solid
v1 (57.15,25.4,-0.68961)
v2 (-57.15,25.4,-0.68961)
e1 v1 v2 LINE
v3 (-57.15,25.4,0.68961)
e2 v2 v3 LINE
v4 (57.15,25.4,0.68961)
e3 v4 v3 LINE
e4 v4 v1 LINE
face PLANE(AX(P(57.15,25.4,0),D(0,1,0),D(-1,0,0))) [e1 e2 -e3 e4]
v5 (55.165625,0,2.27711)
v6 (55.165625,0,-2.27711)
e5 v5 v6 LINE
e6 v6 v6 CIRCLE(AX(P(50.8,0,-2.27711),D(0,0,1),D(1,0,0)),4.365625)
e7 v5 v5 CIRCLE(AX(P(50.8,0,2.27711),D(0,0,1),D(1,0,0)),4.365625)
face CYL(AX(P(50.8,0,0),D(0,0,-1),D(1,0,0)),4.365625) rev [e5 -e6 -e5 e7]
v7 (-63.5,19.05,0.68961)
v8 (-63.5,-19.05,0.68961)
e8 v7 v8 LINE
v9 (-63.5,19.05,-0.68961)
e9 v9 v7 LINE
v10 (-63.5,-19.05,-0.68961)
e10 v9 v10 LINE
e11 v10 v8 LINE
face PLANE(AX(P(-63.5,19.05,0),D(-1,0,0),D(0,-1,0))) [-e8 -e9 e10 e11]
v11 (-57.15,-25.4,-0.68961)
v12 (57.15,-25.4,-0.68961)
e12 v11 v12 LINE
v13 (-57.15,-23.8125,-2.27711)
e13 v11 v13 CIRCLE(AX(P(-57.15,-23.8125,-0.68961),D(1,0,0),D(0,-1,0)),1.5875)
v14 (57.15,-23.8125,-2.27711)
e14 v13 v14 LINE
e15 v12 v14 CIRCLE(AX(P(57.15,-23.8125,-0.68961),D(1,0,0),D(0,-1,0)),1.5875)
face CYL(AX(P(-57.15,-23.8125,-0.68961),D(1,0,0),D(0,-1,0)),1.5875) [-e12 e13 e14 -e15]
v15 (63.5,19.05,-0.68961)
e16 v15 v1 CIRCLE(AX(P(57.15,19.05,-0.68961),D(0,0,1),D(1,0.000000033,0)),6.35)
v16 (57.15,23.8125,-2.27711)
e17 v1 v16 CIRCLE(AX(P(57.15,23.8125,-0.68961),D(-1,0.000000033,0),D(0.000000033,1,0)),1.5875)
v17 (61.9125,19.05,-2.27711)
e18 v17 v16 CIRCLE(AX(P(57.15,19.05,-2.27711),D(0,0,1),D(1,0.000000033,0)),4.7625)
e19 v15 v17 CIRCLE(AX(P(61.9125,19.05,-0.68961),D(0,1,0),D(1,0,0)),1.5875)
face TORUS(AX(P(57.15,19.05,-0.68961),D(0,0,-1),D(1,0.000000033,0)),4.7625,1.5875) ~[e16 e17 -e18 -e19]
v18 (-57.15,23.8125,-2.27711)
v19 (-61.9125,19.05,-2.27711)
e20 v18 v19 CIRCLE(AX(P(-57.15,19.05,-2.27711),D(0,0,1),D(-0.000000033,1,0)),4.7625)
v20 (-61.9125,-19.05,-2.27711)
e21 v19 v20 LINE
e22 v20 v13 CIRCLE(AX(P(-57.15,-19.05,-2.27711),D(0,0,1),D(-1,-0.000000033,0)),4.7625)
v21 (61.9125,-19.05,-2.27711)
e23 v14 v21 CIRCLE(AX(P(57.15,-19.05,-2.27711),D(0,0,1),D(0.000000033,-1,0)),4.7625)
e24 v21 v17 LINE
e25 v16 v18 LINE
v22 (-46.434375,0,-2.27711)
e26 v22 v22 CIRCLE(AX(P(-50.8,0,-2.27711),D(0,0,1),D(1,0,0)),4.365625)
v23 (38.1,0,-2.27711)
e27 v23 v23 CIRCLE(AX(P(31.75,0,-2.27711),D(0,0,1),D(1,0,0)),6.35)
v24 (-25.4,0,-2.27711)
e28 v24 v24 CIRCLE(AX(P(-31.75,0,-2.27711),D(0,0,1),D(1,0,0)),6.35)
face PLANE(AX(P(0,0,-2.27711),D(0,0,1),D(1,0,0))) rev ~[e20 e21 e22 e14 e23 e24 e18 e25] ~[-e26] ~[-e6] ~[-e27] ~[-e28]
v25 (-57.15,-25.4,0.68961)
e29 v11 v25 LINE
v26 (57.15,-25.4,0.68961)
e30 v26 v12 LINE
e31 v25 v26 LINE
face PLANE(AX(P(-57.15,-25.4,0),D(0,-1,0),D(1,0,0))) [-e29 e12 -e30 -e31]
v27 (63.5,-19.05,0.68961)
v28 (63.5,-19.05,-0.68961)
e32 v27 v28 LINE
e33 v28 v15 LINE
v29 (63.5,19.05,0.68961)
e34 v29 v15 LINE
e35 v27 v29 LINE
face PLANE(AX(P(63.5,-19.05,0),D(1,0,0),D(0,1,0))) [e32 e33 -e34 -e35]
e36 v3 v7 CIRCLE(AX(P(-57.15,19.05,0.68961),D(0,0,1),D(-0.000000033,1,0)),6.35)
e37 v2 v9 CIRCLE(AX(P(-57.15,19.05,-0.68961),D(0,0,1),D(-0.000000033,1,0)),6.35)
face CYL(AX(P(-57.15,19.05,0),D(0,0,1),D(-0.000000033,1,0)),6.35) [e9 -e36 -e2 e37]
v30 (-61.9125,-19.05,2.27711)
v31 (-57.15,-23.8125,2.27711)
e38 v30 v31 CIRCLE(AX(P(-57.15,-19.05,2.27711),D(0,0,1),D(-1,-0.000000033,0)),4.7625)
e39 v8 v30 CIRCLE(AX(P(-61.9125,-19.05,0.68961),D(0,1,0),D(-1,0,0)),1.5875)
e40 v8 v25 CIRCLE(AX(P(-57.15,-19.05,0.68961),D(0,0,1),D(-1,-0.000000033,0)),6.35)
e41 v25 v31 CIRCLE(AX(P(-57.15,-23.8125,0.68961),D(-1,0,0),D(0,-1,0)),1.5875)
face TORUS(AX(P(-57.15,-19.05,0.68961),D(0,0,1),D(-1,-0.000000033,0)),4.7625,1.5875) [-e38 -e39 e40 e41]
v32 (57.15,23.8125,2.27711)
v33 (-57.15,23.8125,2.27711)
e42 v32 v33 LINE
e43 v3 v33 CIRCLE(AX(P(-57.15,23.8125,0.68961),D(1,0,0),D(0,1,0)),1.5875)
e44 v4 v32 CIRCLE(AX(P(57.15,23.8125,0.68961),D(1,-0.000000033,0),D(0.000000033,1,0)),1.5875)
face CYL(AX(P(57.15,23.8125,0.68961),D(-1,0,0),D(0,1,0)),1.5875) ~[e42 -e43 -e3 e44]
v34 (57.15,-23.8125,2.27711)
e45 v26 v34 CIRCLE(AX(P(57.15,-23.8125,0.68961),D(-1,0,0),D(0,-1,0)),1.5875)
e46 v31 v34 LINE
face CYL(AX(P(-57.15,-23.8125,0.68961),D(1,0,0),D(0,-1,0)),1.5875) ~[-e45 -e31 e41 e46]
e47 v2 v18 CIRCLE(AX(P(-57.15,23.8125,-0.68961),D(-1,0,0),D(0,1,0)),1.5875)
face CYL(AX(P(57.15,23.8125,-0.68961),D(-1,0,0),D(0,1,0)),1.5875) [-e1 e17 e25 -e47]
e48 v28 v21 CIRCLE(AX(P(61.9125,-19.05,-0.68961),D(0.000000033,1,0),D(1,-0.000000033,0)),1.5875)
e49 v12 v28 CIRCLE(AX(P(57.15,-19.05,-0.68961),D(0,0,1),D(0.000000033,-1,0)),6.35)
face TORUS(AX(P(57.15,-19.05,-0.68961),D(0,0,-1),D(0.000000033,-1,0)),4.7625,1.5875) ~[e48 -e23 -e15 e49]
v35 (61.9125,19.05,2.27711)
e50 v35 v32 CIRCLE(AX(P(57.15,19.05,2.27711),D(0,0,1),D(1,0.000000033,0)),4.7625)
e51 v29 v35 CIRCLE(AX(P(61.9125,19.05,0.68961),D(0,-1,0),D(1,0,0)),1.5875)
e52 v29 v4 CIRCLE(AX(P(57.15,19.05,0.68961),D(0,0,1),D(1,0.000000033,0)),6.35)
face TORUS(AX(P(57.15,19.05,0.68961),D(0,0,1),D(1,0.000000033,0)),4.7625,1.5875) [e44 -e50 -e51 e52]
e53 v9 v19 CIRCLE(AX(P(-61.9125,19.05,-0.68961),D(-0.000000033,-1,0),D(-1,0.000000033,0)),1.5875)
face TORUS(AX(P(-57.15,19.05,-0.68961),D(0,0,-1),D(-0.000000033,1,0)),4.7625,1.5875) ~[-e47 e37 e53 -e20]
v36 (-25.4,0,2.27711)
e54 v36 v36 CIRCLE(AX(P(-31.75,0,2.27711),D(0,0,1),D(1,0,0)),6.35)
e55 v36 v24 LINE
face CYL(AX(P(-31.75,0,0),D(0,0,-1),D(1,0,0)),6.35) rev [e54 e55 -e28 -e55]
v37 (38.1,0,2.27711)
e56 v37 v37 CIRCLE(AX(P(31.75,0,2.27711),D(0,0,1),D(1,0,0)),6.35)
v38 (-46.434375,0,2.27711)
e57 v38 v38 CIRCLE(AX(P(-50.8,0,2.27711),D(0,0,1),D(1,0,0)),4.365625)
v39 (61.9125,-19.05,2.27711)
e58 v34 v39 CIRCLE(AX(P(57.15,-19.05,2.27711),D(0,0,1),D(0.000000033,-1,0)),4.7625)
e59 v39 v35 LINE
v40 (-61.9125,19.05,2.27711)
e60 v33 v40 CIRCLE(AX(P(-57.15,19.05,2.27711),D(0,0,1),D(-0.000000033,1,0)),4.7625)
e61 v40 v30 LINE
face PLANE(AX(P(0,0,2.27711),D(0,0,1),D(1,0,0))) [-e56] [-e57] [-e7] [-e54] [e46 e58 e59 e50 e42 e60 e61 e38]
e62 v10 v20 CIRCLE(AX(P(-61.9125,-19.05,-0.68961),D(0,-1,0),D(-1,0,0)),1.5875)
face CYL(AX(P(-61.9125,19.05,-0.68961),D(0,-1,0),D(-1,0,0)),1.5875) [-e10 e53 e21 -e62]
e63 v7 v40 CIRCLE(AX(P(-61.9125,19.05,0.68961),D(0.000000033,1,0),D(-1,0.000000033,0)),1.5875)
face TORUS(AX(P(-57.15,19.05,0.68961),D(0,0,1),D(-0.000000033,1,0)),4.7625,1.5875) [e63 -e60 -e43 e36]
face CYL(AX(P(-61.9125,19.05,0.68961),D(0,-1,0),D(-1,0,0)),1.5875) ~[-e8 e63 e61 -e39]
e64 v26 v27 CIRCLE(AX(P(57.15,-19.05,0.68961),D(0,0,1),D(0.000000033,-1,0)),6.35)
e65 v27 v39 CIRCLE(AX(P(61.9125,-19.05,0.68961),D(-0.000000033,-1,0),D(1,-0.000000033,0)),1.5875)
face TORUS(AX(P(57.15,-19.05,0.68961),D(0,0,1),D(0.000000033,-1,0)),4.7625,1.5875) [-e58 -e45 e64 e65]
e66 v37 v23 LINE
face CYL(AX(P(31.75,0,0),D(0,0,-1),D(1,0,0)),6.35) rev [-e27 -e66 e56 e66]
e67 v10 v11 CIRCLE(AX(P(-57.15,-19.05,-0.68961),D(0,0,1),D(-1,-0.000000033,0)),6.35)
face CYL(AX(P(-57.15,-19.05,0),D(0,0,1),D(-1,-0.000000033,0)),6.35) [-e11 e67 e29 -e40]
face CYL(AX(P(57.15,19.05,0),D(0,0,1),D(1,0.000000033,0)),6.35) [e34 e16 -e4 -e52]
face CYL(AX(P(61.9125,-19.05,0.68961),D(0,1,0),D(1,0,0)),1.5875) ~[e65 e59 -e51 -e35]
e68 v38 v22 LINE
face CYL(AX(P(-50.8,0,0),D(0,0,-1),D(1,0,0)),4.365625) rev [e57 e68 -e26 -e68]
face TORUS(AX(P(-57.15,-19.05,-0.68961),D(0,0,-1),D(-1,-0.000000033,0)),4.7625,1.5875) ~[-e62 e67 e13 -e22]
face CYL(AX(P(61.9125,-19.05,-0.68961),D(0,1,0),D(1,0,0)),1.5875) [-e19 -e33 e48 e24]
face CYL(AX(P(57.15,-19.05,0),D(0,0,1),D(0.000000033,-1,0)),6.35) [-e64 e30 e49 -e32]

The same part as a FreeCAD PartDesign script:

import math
import FreeCAD as App
import Part
import Sketcher
from FreeCAD import Vector
Q = App.Units.Quantity


def edges_at(feature, points):
    """Names of the edges that pass closest to the given points."""
    edges = feature.Shape.Edges
    near = lambda p: min(range(len(edges)), key=lambda i: edges[i].distToShape(Part.Vertex(*p))[0])
    return sorted({f"Edge{near(p) + 1}" for p in points})

doc = App.newDocument("Part")
params = doc.addObject("Spreadsheet::Sheet", "Params")
for row, (alias, value) in enumerate([
    ("sketch1_diameter", "0.5 in"),
    ("sketch1_diameter2", "0.34375 in"),
    ("sketch1_width", "4.5 in"),
    ("sketch1_height", "1.5 in"),
    ("pad1_length", "0.1793 in"),
    ("fillet_radius", "0.0625 in"),
], start=1):
    params.set(f"A{row}", alias)
    params.set(f"B{row}", "=" + value)
    params.setAlias(f"B{row}", alias)

body = doc.addObject("PartDesign::Body", "Body")

# Sketch on XY plane
sketch1 = body.newObject("Sketcher::SketchObject", "Sketch")
sketch1.AttachmentSupport = (doc.getObject("XY_Plane"), [""])
sketch1.MapMode = "FlatFace"
sketch1.addGeometry([
    Part.LineSegment(Vector(57.15, 25.4, 0), Vector(-57.15, 25.4, 0)),  # 0
    Part.ArcOfCircle(Part.Circle(Vector(-57.15, 19.05, 0), Vector(0, 0, 1), 6.35), math.radians(90.000002), math.radians(179.999998)),  # 1
    Part.LineSegment(Vector(-63.5, 19.05, 0), Vector(-63.5, -19.05, 0)),  # 2
    Part.ArcOfCircle(Part.Circle(Vector(-57.15, -19.05, 0), Vector(0, 0, 1), 6.35), math.radians(-179.999998), math.radians(-90.000002)),  # 3
    Part.LineSegment(Vector(-57.15, -25.4, 0), Vector(57.15, -25.4, 0)),  # 4
    Part.ArcOfCircle(Part.Circle(Vector(57.15, -19.05, 0), Vector(0, 0, 1), 6.35), math.radians(-89.999998), math.radians(-0.000002)),  # 5
    Part.LineSegment(Vector(63.5, -19.05, 0), Vector(63.5, 19.05, 0)),  # 6
    Part.ArcOfCircle(Part.Circle(Vector(57.15, 19.05, 0), Vector(0, 0, 1), 6.35), math.radians(0.000002), math.radians(89.999998)),  # 7
    Part.Circle(Vector(-50.8, 0, 0), Vector(0, 0, 1), 4.365625),  # 8
    Part.Circle(Vector(-31.75, 0, 0), Vector(0, 0, 1), 6.35),  # 9
    Part.Circle(Vector(31.75, 0, 0), Vector(0, 0, 1), 6.35),  # 10
    Part.Circle(Vector(50.8, 0, 0), Vector(0, 0, 1), 4.365625),  # 11
], False)
sketch1.addConstraint([
    Sketcher.Constraint("Tangent", 0, 2, 1, 1),
    Sketcher.Constraint("Tangent", 1, 2, 2, 1),
    Sketcher.Constraint("Tangent", 2, 2, 3, 1),
    Sketcher.Constraint("Tangent", 3, 2, 4, 1),
    Sketcher.Constraint("Tangent", 4, 2, 5, 1),
    Sketcher.Constraint("Tangent", 5, 2, 6, 1),
    Sketcher.Constraint("Tangent", 6, 2, 7, 1),
    Sketcher.Constraint("Tangent", 7, 2, 0, 1),
    Sketcher.Constraint("Horizontal", 0),
    Sketcher.Constraint("Vertical", 2),
    Sketcher.Constraint("Horizontal", 4),
    Sketcher.Constraint("Vertical", 6),
    Sketcher.Constraint("Equal", 1, 3),
    Sketcher.Constraint("Equal", 3, 5),
    Sketcher.Constraint("Equal", 5, 7),
    Sketcher.Constraint("Equal", 7, 9),
    Sketcher.Constraint("Equal", 9, 10),
    Sketcher.Constraint("Equal", 8, 11),
    Sketcher.Constraint("Symmetric", 1, 3, 5, 3, -1, 1),
    Sketcher.Constraint("Symmetric", 9, 3, 10, 3, -1, 1),
    Sketcher.Constraint("Symmetric", 8, 3, 11, 3, -1, 1),
    Sketcher.Constraint("PointOnObject", 8, 3, -1),
    Sketcher.Constraint("PointOnObject", 9, 3, -1),
    Sketcher.Constraint("Diameter", 9, Q("0.5 in")),
    Sketcher.Constraint("Diameter", 8, Q("0.34375 in")),
    Sketcher.Constraint("DistanceX", 0, 2, 0, 1, Q("4.5 in")),
    Sketcher.Constraint("DistanceY", 2, 2, 2, 1, Q("1.5 in")),
    Sketcher.Constraint("DistanceX", 8, 3, -1, 1, Q("2 in")),
    Sketcher.Constraint("DistanceX", 1, 3, 9, 3, Q("1 in")),
])
sketch1.setExpression("Constraints[23]", "Params.sketch1_diameter")
sketch1.setExpression("Constraints[24]", "Params.sketch1_diameter2")
sketch1.setExpression("Constraints[25]", "Params.sketch1_width")
sketch1.setExpression("Constraints[26]", "Params.sketch1_height")
pad1 = body.newObject("PartDesign::Pad", "Pad")
pad1.Profile = sketch1
pad1.setExpression("Length", "Params.pad1_length")
pad1.Midplane = True
doc.recompute()

fillet = body.newObject("PartDesign::Fillet", "Fillet")
fillet.Base = (pad1, edges_at(pad1, [(0, -25.4, 2.277), (0, -25.4, -2.277)]))
fillet.setExpression("Radius", "Params.fillet_radius")

doc.recompute()
